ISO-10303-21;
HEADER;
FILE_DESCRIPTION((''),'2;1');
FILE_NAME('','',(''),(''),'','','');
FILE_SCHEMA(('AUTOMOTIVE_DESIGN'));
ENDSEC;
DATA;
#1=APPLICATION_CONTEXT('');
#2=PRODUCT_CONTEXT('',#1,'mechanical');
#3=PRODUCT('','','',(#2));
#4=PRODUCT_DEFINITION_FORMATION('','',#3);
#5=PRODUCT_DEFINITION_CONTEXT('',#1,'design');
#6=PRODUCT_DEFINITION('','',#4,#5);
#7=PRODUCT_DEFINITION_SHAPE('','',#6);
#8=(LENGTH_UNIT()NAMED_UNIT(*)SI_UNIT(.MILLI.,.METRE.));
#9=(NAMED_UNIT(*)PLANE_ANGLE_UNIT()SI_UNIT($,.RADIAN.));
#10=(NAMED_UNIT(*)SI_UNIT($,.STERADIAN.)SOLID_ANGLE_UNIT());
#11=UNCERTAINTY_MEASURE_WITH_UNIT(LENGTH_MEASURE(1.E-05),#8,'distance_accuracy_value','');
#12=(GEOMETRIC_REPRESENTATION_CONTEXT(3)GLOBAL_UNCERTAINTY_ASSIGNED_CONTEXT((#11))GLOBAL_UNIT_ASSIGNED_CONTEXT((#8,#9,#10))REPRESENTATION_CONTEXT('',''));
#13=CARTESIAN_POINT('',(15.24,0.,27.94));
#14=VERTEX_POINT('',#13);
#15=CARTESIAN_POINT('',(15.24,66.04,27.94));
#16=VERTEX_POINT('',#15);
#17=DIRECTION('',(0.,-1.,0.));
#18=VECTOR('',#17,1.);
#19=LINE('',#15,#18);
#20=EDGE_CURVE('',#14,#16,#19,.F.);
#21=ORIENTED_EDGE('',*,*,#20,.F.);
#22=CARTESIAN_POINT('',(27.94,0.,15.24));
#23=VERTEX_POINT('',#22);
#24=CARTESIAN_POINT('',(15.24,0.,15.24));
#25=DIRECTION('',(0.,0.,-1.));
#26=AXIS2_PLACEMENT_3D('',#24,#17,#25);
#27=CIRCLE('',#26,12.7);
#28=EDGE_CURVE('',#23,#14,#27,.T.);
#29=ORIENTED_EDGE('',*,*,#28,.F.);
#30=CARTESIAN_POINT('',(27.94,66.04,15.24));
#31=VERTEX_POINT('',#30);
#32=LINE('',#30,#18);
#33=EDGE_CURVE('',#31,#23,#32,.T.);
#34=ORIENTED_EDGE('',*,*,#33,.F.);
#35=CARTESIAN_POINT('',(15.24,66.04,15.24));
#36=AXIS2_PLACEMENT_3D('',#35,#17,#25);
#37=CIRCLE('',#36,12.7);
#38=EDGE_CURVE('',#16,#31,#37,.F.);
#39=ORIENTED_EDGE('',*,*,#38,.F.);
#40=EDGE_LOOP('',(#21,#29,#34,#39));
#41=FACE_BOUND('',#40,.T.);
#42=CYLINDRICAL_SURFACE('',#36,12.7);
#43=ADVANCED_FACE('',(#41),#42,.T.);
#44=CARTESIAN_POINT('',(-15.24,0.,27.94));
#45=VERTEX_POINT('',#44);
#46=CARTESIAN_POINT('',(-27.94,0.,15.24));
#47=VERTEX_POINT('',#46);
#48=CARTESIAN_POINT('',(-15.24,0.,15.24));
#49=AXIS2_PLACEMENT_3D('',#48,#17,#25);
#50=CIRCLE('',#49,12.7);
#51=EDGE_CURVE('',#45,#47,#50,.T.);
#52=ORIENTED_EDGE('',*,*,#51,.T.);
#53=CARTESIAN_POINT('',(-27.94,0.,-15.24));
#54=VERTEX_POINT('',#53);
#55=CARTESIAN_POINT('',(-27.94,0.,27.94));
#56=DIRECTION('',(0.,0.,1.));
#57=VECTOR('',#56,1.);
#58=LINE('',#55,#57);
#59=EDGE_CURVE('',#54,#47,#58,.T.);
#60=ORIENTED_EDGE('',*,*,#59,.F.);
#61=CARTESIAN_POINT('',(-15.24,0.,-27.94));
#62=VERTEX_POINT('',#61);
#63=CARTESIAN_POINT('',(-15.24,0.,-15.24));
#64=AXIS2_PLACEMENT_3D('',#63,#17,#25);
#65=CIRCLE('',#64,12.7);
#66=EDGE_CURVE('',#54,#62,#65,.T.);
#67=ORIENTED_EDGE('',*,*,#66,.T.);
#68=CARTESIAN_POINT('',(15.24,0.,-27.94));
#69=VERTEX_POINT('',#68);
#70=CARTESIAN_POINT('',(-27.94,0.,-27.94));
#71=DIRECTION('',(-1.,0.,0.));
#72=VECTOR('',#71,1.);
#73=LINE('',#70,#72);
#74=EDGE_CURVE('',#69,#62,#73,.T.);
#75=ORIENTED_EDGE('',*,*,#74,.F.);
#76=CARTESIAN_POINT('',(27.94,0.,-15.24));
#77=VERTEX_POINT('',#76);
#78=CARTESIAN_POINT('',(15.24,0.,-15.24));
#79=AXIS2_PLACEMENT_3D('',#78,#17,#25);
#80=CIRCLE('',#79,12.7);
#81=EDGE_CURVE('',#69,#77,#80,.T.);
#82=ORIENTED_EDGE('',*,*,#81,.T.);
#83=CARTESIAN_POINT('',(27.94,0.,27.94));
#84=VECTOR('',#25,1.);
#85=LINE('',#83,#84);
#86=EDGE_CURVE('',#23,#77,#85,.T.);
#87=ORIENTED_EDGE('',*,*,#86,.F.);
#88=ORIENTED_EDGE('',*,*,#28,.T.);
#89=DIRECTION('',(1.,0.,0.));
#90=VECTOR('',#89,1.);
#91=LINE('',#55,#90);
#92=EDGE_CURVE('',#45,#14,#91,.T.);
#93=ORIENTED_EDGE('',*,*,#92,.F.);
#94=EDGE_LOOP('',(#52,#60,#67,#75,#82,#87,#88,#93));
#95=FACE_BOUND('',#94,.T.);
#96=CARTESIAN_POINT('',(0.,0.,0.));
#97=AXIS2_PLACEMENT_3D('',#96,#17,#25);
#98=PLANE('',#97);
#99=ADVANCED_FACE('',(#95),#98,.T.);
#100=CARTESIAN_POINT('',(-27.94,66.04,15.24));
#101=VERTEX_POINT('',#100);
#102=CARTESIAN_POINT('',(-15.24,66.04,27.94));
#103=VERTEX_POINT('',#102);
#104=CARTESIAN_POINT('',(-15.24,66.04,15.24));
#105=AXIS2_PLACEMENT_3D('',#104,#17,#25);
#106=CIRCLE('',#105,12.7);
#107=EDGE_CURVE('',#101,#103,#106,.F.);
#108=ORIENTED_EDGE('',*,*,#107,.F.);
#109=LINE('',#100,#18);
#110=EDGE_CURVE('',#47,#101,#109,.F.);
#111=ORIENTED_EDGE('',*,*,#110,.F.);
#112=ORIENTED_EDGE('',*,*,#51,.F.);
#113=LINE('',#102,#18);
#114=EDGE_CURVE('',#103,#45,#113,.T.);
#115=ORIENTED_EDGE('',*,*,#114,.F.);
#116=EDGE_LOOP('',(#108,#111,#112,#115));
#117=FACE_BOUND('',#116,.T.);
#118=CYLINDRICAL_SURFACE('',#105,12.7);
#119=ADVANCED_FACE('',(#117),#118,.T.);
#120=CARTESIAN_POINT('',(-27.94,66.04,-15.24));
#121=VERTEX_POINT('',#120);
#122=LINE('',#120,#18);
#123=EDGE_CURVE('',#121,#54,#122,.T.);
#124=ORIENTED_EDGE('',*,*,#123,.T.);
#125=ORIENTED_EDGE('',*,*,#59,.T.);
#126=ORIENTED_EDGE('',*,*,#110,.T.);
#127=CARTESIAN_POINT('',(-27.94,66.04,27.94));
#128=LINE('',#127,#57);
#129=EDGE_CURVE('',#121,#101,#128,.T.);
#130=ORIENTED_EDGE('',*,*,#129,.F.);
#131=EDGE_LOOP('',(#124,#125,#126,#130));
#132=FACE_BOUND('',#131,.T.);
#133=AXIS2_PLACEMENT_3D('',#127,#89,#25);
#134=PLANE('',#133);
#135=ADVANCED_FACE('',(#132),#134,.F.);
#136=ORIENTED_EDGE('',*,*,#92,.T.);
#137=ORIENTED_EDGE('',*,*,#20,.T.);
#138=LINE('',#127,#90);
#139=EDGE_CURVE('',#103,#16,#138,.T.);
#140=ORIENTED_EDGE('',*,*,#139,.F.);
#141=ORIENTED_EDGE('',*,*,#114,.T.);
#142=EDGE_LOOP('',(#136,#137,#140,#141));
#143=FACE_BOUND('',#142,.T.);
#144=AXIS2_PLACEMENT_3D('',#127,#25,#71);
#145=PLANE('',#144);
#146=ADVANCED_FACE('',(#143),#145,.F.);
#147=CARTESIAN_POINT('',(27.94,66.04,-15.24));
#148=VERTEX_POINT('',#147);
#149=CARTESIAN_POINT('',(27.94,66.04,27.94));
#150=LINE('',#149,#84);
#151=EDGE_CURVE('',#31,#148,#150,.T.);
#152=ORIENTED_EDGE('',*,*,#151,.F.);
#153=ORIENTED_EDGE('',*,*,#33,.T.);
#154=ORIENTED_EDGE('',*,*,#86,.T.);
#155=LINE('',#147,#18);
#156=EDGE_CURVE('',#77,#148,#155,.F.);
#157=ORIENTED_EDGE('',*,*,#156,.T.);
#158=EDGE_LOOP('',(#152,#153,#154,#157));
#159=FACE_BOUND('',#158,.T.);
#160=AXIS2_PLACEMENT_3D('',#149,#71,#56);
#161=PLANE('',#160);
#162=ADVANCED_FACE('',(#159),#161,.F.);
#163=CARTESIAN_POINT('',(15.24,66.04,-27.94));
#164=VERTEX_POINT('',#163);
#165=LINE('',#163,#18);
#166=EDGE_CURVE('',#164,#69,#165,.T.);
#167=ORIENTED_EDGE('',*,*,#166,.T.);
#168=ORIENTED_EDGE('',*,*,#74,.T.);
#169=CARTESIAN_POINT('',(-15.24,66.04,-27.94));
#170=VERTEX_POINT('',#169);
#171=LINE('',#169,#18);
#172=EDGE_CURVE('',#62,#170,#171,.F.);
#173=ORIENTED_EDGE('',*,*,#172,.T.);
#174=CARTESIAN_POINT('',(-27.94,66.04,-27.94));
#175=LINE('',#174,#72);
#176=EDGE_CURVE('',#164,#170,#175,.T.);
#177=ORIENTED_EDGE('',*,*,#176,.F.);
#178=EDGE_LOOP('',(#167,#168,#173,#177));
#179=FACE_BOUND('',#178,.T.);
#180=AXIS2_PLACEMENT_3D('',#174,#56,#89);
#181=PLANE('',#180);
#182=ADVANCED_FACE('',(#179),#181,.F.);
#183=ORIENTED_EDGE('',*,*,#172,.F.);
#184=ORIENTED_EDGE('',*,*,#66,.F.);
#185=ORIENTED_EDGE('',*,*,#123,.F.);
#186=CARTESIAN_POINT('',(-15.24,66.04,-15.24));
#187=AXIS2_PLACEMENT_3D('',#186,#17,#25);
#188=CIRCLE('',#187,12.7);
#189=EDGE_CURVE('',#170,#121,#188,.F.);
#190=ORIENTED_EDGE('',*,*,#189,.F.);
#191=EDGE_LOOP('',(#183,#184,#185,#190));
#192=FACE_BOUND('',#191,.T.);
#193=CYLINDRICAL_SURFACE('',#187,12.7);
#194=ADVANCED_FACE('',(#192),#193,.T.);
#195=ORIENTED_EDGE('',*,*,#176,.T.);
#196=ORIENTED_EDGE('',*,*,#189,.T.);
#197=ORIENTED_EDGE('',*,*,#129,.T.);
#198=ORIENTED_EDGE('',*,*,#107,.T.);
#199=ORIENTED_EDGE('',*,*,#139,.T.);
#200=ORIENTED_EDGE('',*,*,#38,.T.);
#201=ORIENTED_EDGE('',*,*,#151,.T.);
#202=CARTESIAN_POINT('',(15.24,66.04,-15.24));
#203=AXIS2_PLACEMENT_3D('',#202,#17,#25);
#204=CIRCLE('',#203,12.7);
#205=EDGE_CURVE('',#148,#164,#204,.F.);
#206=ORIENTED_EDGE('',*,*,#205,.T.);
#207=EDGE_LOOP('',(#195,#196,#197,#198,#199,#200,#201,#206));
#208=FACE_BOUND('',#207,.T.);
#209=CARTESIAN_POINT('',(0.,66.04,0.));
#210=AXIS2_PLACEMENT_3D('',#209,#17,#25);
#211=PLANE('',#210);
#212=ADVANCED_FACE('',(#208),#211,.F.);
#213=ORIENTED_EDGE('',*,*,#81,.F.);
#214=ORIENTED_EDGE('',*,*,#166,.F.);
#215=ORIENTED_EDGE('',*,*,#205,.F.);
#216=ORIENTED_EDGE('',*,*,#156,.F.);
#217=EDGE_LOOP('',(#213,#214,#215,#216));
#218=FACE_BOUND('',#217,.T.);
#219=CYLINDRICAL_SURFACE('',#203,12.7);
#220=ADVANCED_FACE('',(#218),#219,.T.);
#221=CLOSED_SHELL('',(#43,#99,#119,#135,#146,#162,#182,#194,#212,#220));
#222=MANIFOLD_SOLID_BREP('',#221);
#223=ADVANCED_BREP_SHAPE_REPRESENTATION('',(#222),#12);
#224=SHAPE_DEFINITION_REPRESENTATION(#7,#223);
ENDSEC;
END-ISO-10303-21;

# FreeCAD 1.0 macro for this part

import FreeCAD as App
import Part
import Sketcher

V = App.Vector
Q = App.Units.Quantity


def edges_at(feature, points):
    """Names of the edges that pass closest to the given points."""
    edges = feature.Shape.Edges
    near = lambda p: min(range(len(edges)), key=lambda i: edges[i].distToShape(Part.Vertex(*p))[0])
    return sorted({f"Edge{near(p) + 1}" for p in points})


def add_polygon(sketch, points):
    """Adds a closed chain of lines whose ends are joined by coincident constraints."""
    first, n = sketch.GeometryCount, len(points)
    for a, b in zip(points, points[1:] + points[:1]):
        sketch.addGeometry(Part.LineSegment(App.Vector(*a, 0), App.Vector(*b, 0)), False)
    for i in range(n):
        sketch.addConstraint(Sketcher.Constraint("Coincident", first + i, 2, first + (i + 1) % n, 1))

doc = App.newDocument("Part")
body = doc.addObject("PartDesign::Body", "Body")

# Sketch on XZ plane
sketch1 = body.newObject("Sketcher::SketchObject", "Sketch")
sketch1.AttachmentSupport = (doc.getObject("XZ_Plane"), [""])
sketch1.MapMode = "FlatFace"
add_polygon(sketch1, [(-28, -28), (-28, 28), (28, 28), (28, -28)])  # lines 0-3
sketch1.addConstraint([
    Sketcher.Constraint("Vertical", 0),
    Sketcher.Constraint("Horizontal", 1),
    Sketcher.Constraint("Vertical", 2),
    Sketcher.Constraint("Horizontal", 3),
    Sketcher.Constraint("Symmetric", 0, 2, 2, 2, -1, 1),
    Sketcher.Constraint("Equal", 3, 0),
    Sketcher.Constraint("DistanceX", 1, 1, 1, 2, Q("2.2 in")),
])
pad1 = body.newObject("PartDesign::Pad", "Pad")
pad1.Profile = sketch1
pad1.Length = Q("2.6 in")
pad1.Reversed = True
doc.recompute()

fillet = body.newObject("PartDesign::Fillet", "Fillet")
fillet.Base = (pad1, edges_at(pad1, [
    (27.94, 33.02, 27.94),
    (-27.94, 33.02, 27.94),
    (-27.94, 33.02, -27.94),
    (27.94, 33.02, -27.94),
]))
fillet.Radius = Q("0.5 in")

doc.recompute()
